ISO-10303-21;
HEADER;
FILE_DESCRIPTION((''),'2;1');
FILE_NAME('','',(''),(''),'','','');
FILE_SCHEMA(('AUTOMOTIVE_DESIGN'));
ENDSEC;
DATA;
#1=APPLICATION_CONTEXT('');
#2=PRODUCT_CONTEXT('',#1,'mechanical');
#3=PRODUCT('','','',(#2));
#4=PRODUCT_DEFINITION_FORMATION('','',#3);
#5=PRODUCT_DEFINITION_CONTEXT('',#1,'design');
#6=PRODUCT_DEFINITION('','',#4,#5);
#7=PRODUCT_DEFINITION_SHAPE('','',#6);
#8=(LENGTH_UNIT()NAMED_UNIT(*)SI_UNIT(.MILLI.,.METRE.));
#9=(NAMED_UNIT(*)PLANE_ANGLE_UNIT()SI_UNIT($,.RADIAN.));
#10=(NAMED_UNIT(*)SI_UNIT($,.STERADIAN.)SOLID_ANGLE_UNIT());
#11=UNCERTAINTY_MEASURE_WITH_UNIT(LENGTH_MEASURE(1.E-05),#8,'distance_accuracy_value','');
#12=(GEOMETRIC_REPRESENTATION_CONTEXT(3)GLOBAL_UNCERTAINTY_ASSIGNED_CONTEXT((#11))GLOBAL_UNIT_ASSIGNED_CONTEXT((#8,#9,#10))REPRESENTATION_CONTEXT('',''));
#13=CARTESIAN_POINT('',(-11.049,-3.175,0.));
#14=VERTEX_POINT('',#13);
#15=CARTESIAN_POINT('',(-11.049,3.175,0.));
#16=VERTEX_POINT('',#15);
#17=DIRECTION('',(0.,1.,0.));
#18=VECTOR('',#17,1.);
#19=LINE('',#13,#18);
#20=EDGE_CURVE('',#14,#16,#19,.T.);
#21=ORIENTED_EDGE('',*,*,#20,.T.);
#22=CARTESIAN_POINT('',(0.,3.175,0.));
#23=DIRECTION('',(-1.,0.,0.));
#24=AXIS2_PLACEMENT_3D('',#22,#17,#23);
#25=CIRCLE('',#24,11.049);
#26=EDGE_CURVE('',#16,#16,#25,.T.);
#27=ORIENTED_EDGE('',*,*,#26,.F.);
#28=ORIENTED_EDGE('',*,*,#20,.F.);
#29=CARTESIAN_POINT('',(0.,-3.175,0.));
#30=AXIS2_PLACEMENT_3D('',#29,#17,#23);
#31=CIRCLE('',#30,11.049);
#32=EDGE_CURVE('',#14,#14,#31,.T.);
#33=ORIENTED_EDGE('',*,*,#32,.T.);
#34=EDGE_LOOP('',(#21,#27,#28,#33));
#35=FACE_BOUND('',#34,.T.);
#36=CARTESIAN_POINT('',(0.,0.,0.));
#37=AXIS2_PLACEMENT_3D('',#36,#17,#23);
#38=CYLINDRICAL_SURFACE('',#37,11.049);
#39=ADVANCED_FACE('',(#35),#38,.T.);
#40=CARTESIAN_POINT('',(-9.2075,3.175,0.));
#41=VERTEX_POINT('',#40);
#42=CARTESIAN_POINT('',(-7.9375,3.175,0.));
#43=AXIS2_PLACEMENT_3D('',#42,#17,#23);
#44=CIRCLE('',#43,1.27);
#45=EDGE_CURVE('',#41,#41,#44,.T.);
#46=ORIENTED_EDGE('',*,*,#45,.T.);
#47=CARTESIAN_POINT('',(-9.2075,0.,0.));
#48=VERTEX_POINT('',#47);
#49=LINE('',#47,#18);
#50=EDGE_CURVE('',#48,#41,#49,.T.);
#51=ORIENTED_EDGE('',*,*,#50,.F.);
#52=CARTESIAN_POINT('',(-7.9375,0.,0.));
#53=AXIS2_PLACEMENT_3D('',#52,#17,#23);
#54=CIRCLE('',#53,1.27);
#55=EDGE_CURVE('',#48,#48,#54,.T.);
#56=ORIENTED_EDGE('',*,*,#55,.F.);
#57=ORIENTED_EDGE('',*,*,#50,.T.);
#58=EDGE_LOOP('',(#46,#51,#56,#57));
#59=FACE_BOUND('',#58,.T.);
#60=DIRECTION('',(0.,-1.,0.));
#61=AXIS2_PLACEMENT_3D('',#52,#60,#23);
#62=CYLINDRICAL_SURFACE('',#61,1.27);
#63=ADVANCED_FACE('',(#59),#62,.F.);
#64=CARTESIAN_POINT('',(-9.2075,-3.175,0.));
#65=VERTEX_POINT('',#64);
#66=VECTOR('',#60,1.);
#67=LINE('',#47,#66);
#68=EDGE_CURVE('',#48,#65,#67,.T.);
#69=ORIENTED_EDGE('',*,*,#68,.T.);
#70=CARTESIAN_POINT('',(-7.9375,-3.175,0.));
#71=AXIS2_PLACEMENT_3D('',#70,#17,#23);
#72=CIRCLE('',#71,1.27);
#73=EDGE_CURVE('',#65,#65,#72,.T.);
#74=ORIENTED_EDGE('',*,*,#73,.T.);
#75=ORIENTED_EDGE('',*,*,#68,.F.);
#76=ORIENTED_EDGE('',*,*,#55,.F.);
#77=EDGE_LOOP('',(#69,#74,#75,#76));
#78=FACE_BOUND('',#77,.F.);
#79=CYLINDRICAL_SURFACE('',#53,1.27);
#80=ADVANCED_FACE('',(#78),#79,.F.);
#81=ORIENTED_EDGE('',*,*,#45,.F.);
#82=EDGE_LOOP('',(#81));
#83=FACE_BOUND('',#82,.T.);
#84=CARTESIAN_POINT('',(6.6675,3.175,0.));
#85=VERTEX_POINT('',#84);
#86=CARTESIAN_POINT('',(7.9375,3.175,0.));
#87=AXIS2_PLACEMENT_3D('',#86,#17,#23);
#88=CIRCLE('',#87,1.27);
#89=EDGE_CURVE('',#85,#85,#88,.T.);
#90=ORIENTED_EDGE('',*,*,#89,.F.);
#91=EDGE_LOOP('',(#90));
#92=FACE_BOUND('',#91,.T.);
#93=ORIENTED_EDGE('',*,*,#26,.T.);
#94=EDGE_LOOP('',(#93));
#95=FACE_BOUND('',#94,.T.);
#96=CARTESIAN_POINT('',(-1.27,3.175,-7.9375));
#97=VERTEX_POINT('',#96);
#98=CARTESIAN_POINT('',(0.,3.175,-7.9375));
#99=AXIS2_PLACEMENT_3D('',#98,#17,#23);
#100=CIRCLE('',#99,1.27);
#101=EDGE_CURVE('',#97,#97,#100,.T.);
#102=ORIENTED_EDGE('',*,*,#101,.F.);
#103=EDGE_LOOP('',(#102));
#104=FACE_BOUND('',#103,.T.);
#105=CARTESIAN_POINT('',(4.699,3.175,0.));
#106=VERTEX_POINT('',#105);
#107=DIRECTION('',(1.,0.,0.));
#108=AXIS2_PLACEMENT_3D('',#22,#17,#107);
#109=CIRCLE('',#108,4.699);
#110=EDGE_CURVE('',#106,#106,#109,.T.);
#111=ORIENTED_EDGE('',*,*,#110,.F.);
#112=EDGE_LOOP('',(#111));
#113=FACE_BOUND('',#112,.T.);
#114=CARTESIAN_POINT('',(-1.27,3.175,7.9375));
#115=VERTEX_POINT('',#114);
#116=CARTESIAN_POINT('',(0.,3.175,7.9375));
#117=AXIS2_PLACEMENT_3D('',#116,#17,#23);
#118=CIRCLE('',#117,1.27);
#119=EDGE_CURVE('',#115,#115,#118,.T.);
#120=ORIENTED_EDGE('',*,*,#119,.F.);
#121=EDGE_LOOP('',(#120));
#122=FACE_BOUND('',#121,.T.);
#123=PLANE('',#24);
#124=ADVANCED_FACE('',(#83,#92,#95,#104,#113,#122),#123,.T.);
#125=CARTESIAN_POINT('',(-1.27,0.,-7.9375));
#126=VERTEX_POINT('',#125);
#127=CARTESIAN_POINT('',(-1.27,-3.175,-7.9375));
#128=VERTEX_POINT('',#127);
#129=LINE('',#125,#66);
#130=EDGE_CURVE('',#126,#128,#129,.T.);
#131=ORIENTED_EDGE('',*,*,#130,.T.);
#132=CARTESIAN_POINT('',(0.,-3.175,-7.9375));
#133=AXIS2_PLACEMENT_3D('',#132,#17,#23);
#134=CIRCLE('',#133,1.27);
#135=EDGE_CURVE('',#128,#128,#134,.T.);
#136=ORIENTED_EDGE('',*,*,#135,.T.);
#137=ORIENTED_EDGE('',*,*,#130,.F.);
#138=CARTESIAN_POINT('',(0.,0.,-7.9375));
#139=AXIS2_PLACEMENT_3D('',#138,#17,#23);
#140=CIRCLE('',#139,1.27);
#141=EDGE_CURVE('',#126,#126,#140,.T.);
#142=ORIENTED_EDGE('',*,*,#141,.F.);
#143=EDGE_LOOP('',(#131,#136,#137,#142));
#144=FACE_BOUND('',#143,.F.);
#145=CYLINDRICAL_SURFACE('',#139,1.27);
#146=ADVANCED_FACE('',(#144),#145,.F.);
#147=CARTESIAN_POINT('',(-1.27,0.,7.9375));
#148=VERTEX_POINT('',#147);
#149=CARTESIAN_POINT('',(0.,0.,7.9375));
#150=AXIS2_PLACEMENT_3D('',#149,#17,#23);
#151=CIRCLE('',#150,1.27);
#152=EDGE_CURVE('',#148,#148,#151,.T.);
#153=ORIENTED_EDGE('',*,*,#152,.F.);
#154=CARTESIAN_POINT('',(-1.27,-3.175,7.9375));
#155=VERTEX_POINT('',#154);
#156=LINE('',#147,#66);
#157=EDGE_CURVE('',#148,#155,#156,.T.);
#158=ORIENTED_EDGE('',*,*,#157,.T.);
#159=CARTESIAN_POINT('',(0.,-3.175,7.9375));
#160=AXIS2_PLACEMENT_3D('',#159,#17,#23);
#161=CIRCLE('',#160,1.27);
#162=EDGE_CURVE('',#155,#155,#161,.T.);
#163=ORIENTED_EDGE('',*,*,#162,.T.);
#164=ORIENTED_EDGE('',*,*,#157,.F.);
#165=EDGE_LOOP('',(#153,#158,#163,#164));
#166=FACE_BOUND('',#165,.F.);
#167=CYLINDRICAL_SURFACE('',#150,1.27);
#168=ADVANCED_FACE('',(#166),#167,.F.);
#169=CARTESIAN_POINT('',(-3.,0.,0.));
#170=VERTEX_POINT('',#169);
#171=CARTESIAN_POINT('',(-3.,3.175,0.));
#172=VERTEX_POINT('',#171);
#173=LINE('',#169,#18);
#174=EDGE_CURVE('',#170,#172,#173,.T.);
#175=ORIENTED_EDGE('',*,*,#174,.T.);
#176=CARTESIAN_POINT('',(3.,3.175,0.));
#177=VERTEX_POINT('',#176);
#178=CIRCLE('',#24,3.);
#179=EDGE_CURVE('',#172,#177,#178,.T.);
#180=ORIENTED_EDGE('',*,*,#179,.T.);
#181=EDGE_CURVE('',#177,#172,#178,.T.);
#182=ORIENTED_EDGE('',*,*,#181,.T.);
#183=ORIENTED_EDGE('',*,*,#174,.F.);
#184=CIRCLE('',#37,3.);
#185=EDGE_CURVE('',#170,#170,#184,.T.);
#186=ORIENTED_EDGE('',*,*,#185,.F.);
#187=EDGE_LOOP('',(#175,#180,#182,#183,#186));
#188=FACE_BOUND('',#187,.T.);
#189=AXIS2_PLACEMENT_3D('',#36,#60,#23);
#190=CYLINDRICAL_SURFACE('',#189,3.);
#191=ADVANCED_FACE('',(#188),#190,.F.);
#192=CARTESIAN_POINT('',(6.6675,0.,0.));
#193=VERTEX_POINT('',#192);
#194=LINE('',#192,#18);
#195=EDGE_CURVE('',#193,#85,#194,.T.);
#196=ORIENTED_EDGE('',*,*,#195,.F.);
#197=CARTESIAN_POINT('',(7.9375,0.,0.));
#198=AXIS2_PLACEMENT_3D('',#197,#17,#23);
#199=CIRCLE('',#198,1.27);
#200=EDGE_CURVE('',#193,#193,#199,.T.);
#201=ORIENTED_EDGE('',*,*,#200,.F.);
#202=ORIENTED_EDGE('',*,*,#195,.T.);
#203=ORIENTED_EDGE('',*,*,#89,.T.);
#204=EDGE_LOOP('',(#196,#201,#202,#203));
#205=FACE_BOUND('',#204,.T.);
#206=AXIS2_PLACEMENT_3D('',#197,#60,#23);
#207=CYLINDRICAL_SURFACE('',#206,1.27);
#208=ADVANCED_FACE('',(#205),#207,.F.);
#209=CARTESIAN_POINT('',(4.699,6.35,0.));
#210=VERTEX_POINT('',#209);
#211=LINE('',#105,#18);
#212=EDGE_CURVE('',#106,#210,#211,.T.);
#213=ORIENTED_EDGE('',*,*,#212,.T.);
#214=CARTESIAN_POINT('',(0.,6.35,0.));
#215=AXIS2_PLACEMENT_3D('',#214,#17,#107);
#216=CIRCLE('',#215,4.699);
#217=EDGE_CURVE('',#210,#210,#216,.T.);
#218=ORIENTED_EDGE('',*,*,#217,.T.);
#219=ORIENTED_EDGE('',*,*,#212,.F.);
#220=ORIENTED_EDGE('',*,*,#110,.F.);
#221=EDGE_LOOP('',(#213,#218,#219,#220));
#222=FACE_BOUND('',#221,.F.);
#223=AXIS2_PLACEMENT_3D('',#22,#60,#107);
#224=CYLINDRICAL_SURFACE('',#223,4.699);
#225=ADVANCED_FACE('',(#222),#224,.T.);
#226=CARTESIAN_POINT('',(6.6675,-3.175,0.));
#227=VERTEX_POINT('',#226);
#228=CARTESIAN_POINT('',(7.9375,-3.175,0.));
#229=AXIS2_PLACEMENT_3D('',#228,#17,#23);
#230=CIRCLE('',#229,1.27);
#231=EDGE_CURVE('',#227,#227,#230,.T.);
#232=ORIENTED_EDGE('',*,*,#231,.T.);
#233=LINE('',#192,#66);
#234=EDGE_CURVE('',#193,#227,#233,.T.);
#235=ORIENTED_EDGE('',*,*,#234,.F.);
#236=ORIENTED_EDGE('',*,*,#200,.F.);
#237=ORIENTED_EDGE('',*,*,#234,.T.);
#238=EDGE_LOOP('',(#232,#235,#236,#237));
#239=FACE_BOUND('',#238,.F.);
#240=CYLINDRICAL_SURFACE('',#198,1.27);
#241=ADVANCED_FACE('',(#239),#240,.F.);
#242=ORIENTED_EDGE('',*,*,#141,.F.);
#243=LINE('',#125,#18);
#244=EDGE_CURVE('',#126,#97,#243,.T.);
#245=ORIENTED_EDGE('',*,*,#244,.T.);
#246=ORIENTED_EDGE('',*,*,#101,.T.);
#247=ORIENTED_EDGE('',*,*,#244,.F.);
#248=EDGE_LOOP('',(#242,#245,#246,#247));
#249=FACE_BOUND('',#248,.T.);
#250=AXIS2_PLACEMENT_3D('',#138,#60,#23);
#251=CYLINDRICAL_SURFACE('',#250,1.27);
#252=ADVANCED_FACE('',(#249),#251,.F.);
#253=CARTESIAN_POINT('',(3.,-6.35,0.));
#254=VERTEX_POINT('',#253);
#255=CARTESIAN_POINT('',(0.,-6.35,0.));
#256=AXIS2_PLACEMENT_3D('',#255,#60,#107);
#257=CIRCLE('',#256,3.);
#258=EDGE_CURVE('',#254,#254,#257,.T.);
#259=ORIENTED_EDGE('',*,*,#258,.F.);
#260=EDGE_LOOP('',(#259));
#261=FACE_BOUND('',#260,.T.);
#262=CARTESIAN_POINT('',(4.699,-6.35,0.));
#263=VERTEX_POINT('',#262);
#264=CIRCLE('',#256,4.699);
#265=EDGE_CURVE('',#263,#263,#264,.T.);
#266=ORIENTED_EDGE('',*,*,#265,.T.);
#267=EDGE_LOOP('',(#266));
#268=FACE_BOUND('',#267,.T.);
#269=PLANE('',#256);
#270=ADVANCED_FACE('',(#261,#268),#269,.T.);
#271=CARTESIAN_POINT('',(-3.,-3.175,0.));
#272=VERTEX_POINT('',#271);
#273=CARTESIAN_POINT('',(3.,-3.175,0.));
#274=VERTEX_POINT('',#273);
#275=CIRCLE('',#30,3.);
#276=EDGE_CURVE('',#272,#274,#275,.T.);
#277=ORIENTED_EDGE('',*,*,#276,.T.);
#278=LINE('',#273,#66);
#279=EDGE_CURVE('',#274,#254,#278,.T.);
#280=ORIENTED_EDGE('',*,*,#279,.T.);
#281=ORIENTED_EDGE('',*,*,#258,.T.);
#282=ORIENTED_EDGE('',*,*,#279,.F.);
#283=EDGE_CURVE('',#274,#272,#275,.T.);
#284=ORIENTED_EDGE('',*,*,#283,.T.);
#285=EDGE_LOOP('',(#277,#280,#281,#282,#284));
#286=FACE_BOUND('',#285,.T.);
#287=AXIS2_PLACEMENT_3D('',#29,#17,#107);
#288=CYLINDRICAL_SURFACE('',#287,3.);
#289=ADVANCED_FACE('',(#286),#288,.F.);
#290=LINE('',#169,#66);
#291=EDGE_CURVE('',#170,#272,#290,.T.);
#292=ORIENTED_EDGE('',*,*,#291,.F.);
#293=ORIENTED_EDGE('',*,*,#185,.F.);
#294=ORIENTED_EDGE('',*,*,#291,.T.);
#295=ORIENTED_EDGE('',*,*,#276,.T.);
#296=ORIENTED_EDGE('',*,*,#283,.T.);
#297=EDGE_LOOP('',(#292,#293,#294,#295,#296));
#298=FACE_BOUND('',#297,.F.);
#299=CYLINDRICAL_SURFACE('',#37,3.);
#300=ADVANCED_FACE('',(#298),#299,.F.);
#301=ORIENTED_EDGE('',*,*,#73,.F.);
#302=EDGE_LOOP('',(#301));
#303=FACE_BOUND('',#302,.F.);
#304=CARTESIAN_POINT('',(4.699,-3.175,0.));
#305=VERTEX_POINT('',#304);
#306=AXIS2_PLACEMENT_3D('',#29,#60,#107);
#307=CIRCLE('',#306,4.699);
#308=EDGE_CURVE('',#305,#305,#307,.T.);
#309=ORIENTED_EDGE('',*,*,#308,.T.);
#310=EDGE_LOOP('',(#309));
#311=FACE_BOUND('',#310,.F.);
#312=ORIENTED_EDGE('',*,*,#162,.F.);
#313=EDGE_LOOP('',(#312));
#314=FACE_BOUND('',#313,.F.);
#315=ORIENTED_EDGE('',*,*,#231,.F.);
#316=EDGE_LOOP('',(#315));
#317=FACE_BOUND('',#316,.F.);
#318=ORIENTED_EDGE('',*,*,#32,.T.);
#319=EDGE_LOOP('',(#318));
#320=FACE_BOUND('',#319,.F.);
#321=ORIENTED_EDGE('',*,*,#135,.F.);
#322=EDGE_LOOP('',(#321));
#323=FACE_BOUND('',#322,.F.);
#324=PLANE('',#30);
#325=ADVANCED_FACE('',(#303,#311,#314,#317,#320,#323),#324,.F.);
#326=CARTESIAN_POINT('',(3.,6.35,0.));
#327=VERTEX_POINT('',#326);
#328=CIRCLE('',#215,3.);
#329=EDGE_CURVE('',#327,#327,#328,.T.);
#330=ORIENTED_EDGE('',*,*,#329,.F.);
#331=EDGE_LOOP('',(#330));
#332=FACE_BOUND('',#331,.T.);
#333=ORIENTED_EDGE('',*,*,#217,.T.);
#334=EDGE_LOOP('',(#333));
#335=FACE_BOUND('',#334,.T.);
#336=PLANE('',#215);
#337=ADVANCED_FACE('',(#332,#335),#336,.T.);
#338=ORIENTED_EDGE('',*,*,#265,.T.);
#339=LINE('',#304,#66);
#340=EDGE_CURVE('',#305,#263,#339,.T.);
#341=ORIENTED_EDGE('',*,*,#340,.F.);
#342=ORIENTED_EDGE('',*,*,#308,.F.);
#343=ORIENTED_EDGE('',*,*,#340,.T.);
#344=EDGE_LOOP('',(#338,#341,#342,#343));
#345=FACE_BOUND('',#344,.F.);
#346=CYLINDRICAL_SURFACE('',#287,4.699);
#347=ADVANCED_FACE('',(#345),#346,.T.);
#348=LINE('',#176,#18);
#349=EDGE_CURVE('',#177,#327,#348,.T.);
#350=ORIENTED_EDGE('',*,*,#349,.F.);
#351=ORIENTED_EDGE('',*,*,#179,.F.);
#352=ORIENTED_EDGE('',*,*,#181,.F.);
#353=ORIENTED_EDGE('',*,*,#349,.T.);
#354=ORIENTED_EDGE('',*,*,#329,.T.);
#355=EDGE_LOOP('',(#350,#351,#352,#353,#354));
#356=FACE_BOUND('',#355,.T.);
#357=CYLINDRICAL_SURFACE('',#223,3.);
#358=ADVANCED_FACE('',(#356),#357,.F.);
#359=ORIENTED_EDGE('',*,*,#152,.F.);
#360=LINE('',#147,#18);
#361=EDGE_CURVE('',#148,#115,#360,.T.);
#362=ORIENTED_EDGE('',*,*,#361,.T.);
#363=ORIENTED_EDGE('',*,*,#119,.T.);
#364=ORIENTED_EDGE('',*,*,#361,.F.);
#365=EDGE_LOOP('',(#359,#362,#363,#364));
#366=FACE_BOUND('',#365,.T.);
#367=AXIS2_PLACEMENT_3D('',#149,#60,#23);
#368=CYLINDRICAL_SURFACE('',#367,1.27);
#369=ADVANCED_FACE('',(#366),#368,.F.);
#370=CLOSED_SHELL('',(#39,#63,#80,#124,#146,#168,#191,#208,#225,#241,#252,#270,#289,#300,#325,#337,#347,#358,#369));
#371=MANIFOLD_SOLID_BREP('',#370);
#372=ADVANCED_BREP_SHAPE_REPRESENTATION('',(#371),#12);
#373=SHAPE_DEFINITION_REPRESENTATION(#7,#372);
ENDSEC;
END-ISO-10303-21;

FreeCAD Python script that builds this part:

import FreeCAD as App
import Part
import Sketcher

V = App.Vector
Q = App.Units.Quantity

doc = App.newDocument("Part")
params = doc.addObject("Spreadsheet::Sheet", "Params")
for row, (alias, value) in enumerate([
    ("sketch1_diameter", "0.1 in"),
    ("sketch1_diameter2", "0.87 in"),
    ("pad1_length", "0.25 in"),
    ("sketch2_diameter", "0.37 in"),
    ("pad2_length", "0.125 in"),
    ("sketch3_diameter", "0.37 in"),
    ("pad3_length", "0.125 in"),
], start=1):
    params.set(f"A{row}", alias)
    params.set(f"B{row}", "=" + value)
    params.setAlias(f"B{row}", alias)

body = doc.addObject("PartDesign::Body", "Body")

sketch1 = doc.addObject("Sketcher::SketchObject", "Sketch")
body.addObject(sketch1)
sketch1.AttachmentSupport = (doc.XZ_Plane, [""])
sketch1.MapMode = "FlatFace"
sketch1.addGeometry([
    Part.Circle(V(0, 0, 0), V(0, 0, 1), 11),
    Part.Circle(V(0, -7.9, 0), V(0, 0, 1), 1.3),
    Part.Circle(V(7.9, 0, 0), V(0, 0, 1), 1.3),
    Part.Circle(V(0, 0, 0), V(0, 0, 1), 3),
    Part.Circle(V(-7.9, 0, 0), V(0, 0, 1), 1.3),
    Part.Circle(V(0, 7.9, 0), V(0, 0, 1), 1.3),
], False)
sketch1.addConstraint([
    Sketcher.Constraint("Coincident", 0, 3, -1, 1),
    Sketcher.Constraint("Coincident", 3, 3, -1, 1),
    Sketcher.Constraint("Equal", 1, 2),
    Sketcher.Constraint("Equal", 2, 4),
    Sketcher.Constraint("Equal", 4, 5),
    Sketcher.Constraint("Symmetric", 2, 3, 4, 3, -1, 1),
    Sketcher.Constraint("Symmetric", 1, 3, 5, 3, -1, 1),
    Sketcher.Constraint("PointOnObject", 1, 3, -2),
    Sketcher.Constraint("PointOnObject", 2, 3, -1),
    Sketcher.Constraint("Diameter", 1, Q("0.1 in")),
    Sketcher.Constraint("Diameter", 0, Q("0.87 in")),
    Sketcher.Constraint("Diameter", 3, 6.0),
    Sketcher.Constraint("DistanceY", 1, 3, -1, 1, Q("0.3125 in")),
    Sketcher.Constraint("DistanceX", -1, 1, 2, 3, Q("0.3125 in")),
])
sketch1.setExpression("Constraints[9]", "Params.sketch1_diameter")
sketch1.setExpression("Constraints[10]", "Params.sketch1_diameter2")
pad1 = doc.addObject("PartDesign::Pad", "Pad")
body.addObject(pad1)
pad1.Profile = sketch1
pad1.setExpression("Length", "Params.pad1_length")
pad1.Midplane = True

sketch2 = doc.addObject("Sketcher::SketchObject", "Sketch001")
body.addObject(sketch2)
sketch2.AttachmentSupport = (doc.XZ_Plane, [""])
sketch2.MapMode = "FlatFace"
sketch2.AttachmentOffset = App.Placement(V(0, 0, -0.125 * 25.4), App.Rotation())
sketch2.addGeometry([
    Part.Circle(V(0, 0, 0), V(0, 0, 1), 4.7),
    Part.Circle(V(0, 0, 0), V(0, 0, 1), 3),
], False)
sketch2.addConstraint([
    Sketcher.Constraint("Coincident", 0, 3, -1, 1),
    Sketcher.Constraint("Coincident", 1, 3, -1, 1),
    Sketcher.Constraint("Diameter", 0, Q("0.37 in")),
    Sketcher.Constraint("Diameter", 1, 6.0),
])
sketch2.setExpression("Constraints[2]", "Params.sketch2_diameter")
pad2 = doc.addObject("PartDesign::Pad", "Pad001")
body.addObject(pad2)
pad2.Profile = sketch2
pad2.setExpression("Length", "Params.pad2_length")
pad2.Reversed = True

sketch3 = doc.addObject("Sketcher::SketchObject", "Sketch002")
body.addObject(sketch3)
sketch3.AttachmentSupport = (doc.XZ_Plane, [""])
sketch3.MapMode = "FlatFace"
sketch3.AttachmentOffset = App.Placement(V(0, 0, 0.125 * 25.4), App.Rotation())
sketch3.addGeometry([
    Part.Circle(V(0, 0, 0), V(0, 0, 1), 4.7),
    Part.Circle(V(0, 0, 0), V(0, 0, 1), 3),
], False)
sketch3.addConstraint([
    Sketcher.Constraint("Coincident", 0, 3, -1, 1),
    Sketcher.Constraint("Coincident", 1, 3, -1, 1),
    Sketcher.Constraint("Diameter", 0, Q("0.37 in")),
    Sketcher.Constraint("Diameter", 1, 6.0),
])
sketch3.setExpression("Constraints[2]", "Params.sketch3_diameter")
pad3 = doc.addObject("PartDesign::Pad", "Pad002")
body.addObject(pad3)
pad3.Profile = sketch3
pad3.setExpression("Length", "Params.pad3_length")

doc.recompute()
